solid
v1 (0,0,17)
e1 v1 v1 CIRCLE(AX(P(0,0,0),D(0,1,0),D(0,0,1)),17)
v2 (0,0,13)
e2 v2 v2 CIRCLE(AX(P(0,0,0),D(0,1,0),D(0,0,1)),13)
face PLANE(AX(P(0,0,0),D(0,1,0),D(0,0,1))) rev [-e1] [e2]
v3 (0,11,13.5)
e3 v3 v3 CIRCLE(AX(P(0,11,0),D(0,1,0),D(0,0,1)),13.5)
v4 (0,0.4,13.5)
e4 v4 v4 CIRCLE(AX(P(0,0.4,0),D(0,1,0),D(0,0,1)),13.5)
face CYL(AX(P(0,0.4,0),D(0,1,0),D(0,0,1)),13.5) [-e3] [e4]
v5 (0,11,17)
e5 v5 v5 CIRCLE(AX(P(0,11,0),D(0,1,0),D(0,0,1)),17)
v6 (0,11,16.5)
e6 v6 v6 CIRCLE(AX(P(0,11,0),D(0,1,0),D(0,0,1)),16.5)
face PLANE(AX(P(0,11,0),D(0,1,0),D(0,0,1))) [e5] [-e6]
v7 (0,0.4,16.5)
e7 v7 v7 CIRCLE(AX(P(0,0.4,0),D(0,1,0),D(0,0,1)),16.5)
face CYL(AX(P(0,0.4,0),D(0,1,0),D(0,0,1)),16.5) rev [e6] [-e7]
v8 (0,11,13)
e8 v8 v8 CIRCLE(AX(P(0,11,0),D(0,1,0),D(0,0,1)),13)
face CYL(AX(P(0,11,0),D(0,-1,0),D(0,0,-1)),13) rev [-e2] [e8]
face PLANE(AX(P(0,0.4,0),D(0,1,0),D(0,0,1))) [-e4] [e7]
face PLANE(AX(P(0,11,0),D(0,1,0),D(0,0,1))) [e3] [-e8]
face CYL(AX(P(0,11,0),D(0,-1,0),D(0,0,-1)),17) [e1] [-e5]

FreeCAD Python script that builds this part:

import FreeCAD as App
import Part
import Sketcher
from FreeCAD import Vector
Q = App.Units.Quantity

doc = App.newDocument("Part")
body = doc.addObject("PartDesign::Body", "Body")

sketch1 = body.newObject("Sketcher::SketchObject", "Sketch")
sketch1.AttachmentSupport = (doc.getObject("XZ_Plane"), [""])
sketch1.MapMode = "FlatFace"
sketch1.addGeometry(Part.Circle(Vector(0, 0, 0), Vector(0, 0, 1), 17), False)
sketch1.addGeometry(Part.Circle(Vector(0, 0, 0), Vector(0, 0, 1), 13), False)
sketch1.addConstraint(Sketcher.Constraint("Coincident", 0, 3, -1, 1))
sketch1.addConstraint(Sketcher.Constraint("Coincident", 1, 3, -1, 1))
sketch1.addConstraint(Sketcher.Constraint("Diameter", 0, Q("34 mm")))
sketch1.addConstraint(Sketcher.Constraint("Diameter", 1, Q("26 mm")))
pad1 = body.newObject("PartDesign::Pad", "Pad")
pad1.Profile = sketch1
pad1.Length = 11
pad1.Reversed = True

sketch2 = body.newObject("Sketcher::SketchObject", "Sketch001")
sketch2.AttachmentSupport = (doc.getObject("XZ_Plane"), [""])
sketch2.MapMode = "FlatFace"
sketch2.AttachmentOffset = App.Placement(Vector(0, 0, -11), App.Rotation())
sketch2.addGeometry(Part.Circle(Vector(0, 0, 0), Vector(0, 0, 1), 16), False)
sketch2.addGeometry(Part.Circle(Vector(0, 0, 0), Vector(0, 0, 1), 14), False)
sketch2.addConstraint(Sketcher.Constraint("Coincident", 0, 3, -1, 1))
sketch2.addConstraint(Sketcher.Constraint("Coincident", 1, 3, -1, 1))
sketch2.addConstraint(Sketcher.Constraint("Diameter", 0, Q("33 mm")))
sketch2.addConstraint(Sketcher.Constraint("Diameter", 1, Q("27 mm")))
pocket1 = body.newObject("PartDesign::Pocket", "Pocket")
pocket1.Profile = sketch2
pocket1.Length = 10.6
pocket1.Reversed = True

doc.recompute()
